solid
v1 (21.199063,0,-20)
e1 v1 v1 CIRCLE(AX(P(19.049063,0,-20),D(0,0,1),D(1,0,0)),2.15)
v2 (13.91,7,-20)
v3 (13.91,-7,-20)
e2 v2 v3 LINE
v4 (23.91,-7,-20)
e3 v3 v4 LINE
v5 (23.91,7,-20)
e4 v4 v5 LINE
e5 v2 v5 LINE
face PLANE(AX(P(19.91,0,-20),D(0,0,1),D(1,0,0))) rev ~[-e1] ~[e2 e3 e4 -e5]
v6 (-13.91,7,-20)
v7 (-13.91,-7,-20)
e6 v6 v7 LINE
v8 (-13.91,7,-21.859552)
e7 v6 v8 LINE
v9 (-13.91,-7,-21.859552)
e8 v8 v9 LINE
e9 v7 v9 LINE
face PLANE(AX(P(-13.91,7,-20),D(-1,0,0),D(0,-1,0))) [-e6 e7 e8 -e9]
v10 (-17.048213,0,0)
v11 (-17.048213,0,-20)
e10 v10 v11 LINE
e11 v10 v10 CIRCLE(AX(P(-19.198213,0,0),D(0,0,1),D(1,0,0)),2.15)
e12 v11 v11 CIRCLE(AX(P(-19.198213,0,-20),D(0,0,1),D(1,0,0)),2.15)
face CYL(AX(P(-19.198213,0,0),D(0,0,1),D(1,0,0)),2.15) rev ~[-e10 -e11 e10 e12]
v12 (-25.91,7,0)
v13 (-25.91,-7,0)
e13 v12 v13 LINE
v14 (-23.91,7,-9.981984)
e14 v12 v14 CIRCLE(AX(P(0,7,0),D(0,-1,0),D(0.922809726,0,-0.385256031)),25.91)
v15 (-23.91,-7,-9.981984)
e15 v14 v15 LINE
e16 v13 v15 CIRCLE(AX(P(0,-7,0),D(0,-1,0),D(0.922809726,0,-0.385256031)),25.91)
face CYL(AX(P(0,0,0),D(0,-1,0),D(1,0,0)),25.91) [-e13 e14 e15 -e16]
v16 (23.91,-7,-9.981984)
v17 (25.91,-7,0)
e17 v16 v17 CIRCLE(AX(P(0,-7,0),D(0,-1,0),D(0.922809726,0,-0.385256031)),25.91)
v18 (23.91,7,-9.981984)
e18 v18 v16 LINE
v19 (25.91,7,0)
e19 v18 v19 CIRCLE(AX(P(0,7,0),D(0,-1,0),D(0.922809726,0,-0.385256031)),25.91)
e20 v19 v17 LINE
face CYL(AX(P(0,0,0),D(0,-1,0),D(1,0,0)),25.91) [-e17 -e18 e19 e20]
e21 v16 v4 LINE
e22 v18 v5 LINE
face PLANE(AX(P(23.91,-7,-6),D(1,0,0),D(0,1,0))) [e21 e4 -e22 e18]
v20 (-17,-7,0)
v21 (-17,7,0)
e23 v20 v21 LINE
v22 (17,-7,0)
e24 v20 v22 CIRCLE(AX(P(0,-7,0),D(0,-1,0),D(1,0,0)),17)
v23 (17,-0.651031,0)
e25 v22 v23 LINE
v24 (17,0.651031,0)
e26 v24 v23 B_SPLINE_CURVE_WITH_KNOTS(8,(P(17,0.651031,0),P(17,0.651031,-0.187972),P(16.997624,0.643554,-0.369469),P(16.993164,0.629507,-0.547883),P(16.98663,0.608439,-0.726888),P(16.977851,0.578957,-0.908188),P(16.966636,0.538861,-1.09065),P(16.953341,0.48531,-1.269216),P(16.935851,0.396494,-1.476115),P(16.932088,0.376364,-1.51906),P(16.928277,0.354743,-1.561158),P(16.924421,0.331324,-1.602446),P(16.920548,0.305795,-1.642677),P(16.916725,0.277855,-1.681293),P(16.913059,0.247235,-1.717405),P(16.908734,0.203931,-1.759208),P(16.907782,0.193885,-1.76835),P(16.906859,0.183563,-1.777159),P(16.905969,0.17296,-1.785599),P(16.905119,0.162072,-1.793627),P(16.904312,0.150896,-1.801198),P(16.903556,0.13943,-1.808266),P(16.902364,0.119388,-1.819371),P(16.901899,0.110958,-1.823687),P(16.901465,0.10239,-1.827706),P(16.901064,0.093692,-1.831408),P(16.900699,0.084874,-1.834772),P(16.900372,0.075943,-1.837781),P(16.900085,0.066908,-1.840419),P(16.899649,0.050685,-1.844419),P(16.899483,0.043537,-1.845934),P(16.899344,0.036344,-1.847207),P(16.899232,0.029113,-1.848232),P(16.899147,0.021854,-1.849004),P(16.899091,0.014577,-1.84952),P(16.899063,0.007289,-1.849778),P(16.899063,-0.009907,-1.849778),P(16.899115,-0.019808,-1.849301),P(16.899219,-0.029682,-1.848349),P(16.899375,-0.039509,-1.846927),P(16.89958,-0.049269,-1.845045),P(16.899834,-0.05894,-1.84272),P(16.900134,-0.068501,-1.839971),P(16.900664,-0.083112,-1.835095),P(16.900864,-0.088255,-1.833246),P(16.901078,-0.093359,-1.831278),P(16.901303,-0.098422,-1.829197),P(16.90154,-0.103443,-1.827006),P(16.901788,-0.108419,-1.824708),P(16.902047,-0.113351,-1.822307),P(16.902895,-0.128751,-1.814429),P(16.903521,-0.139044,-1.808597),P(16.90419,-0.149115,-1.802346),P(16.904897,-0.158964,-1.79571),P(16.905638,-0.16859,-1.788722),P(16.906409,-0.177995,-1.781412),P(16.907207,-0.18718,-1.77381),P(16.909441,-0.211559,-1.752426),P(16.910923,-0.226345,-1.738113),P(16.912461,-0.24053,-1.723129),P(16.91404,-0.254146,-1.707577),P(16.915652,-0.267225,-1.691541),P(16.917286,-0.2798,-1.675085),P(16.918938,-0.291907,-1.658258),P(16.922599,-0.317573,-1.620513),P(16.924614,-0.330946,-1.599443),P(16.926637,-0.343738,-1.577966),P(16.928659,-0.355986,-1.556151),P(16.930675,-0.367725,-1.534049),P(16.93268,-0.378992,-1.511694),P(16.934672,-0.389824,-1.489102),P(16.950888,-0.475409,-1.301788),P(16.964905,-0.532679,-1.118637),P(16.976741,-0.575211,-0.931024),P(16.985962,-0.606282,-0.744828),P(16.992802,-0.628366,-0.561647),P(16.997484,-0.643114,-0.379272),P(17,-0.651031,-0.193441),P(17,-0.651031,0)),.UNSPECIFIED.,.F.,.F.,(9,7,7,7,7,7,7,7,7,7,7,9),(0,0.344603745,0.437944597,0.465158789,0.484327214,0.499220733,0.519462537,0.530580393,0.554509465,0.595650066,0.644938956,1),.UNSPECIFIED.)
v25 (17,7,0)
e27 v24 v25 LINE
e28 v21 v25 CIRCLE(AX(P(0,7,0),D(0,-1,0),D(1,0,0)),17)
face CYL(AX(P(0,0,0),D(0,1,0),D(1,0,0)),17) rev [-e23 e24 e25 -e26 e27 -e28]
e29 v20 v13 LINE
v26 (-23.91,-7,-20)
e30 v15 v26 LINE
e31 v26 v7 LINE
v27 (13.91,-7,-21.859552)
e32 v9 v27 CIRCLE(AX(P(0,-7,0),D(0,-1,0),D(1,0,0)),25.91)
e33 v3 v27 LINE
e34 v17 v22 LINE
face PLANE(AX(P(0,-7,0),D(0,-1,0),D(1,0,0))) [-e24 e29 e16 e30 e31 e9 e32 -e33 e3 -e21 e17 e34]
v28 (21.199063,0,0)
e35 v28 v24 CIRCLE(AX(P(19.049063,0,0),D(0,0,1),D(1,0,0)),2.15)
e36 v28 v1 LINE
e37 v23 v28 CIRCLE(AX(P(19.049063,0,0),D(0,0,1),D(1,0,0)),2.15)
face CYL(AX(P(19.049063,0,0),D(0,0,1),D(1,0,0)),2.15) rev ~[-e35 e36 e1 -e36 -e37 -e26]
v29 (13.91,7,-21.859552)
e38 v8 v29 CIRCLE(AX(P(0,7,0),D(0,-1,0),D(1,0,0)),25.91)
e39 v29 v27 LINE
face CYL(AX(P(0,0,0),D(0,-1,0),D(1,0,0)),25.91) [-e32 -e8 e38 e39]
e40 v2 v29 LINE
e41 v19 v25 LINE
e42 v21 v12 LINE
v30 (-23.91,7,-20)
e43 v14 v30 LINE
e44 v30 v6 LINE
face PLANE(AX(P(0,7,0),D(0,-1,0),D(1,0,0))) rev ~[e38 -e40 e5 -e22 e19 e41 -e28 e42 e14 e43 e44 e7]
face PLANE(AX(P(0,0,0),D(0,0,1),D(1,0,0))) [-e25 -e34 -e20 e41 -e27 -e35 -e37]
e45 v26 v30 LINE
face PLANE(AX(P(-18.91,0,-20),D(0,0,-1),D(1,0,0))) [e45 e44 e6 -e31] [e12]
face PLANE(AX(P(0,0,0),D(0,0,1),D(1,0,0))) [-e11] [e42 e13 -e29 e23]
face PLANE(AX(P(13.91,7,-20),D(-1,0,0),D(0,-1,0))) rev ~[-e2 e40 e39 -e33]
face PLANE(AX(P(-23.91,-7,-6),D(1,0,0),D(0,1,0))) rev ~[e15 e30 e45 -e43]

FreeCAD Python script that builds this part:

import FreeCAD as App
import Part
import Sketcher
Q = App.Units.Quantity

doc = App.newDocument("Part")
body = doc.addObject("PartDesign::Body", "Body")

# Sketch on XZ plane
sketch1 = body.newObject("Sketcher::SketchObject", "Sketch")
sketch1.AttachmentSupport = (doc.getObject("XZ_Plane"), [""])
sketch1.MapMode = "FlatFace"
sketch1.addGeometry(Part.Circle(App.Vector(0, 0, 0), App.Vector(0, 0, 1), 26), False)
sketch1.addConstraint([
    Sketcher.Constraint("Coincident", 0, 3, -1, 1),
    Sketcher.Constraint("Diameter", 0, Q("51.82 mm")),
])
pad1 = body.newObject("PartDesign::Pad", "Pad")
pad1.Profile = sketch1
pad1.Type = "TwoLengths"
pad1.Length = 7
pad1.Length2 = 7

# Sketch on XZ plane
sketch2 = body.newObject("Sketcher::SketchObject", "Sketch001")
sketch2.AttachmentSupport = (doc.getObject("XZ_Plane"), [""])
sketch2.MapMode = "FlatFace"
sketch2.addGeometry(Part.Circle(App.Vector(0, 0, 0), App.Vector(0, 0, 1), 17), False)
sketch2.addConstraint([
    Sketcher.Constraint("Coincident", 0, 3, -1, 1),
    Sketcher.Constraint("Diameter", 0, Q("34 mm")),
])
pocket1 = body.newObject("PartDesign::Pocket", "Pocket")
pocket1.Profile = sketch2
pocket1.Type = "ThroughAll"
pocket1.Midplane = True

# Sketch on XY plane
sketch3 = body.newObject("Sketcher::SketchObject", "Sketch002")
sketch3.AttachmentSupport = (doc.getObject("XY_Plane"), [""])
sketch3.MapMode = "FlatFace"
sketch3.AttachmentOffset = App.Placement(App.Vector(0, 0, -6), App.Rotation())
sketch3.addGeometry([
    Part.LineSegment(App.Vector(-24, 7, 0), App.Vector(-24, -7, 0)),  # 0
    Part.LineSegment(App.Vector(-24, -7, 0), App.Vector(-16, -7, 0)),  # 1
    Part.LineSegment(App.Vector(-16, -7, 0), App.Vector(-16, 7, 0)),  # 2
    Part.LineSegment(App.Vector(-16, 7, 0), App.Vector(-24, 7, 0)),  # 3
    Part.LineSegment(App.Vector(16, 7, 0), App.Vector(16, -7, 0)),  # 4
    Part.LineSegment(App.Vector(16, -7, 0), App.Vector(24, -7, 0)),  # 5
    Part.LineSegment(App.Vector(24, -7, 0), App.Vector(24, 7, 0)),  # 6
    Part.LineSegment(App.Vector(24, 7, 0), App.Vector(16, 7, 0)),  # 7
], False)
sketch3.addConstraint([
    Sketcher.Constraint("Coincident", 0, 2, 1, 1),
    Sketcher.Constraint("Coincident", 1, 2, 2, 1),
    Sketcher.Constraint("Coincident", 2, 2, 3, 1),
    Sketcher.Constraint("Coincident", 3, 2, 0, 1),
    Sketcher.Constraint("Coincident", 4, 2, 5, 1),
    Sketcher.Constraint("Coincident", 5, 2, 6, 1),
    Sketcher.Constraint("Coincident", 6, 2, 7, 1),
    Sketcher.Constraint("Coincident", 7, 2, 4, 1),
    Sketcher.Constraint("Vertical", 0),
    Sketcher.Constraint("Horizontal", 1),
    Sketcher.Constraint("Vertical", 2),
    Sketcher.Constraint("Horizontal", 3),
    Sketcher.Constraint("Vertical", 4),
    Sketcher.Constraint("Horizontal", 5),
    Sketcher.Constraint("Vertical", 6),
    Sketcher.Constraint("Horizontal", 7),
    Sketcher.Constraint("Symmetric", 2, 2, 4, 2, -1, 1),
    Sketcher.Constraint("Symmetric", 0, 2, 6, 2, -1, 1),
    Sketcher.Constraint("Horizontal", 1, 2, 4, 2),
    Sketcher.Constraint("DistanceX", 1, 1, 1, 2, Q("8 mm")),
    Sketcher.Constraint("DistanceY", 0, 2, 0, 1, Q("14 mm")),
    Sketcher.Constraint("DistanceX", 0, 2, -1, 1, Q("23.91 mm")),
])
pad2 = body.newObject("PartDesign::Pad", "Pad001")
pad2.Profile = sketch3
pad2.Length = 14
pad2.Reversed = True

# Sketch on XY plane
sketch4 = body.newObject("Sketcher::SketchObject", "Sketch003")
sketch4.AttachmentSupport = (doc.getObject("XY_Plane"), [""])
sketch4.MapMode = "FlatFace"
sketch4.addGeometry([
    Part.Circle(App.Vector(-19.2, 0, 0), App.Vector(0, 0, 1), 2.1),
    Part.Circle(App.Vector(19, 0, 0), App.Vector(0, 0, 1), 2.1),
], False)
sketch4.addConstraint([
    Sketcher.Constraint("Equal", 0, 1),
    Sketcher.Constraint("PointOnObject", 0, 3, -1),
    Sketcher.Constraint("PointOnObject", 1, 3, -1),
    Sketcher.Constraint("Diameter", 0, Q("4.3 mm")),
    Sketcher.Constraint("DistanceX", 0, 3, -1, 1, Q("19.198213 mm")),
    Sketcher.Constraint("DistanceX", -1, 1, 1, 3, Q("19.049063 mm")),
])
pocket2 = body.newObject("PartDesign::Pocket", "Pocket001")
pocket2.Profile = sketch4
pocket2.Type = "ThroughAll"
pocket2.Midplane = True

# Sketch on XY plane
sketch5 = body.newObject("Sketcher::SketchObject", "Sketch004")
sketch5.AttachmentSupport = (doc.getObject("XY_Plane"), [""])
sketch5.MapMode = "FlatFace"
sketch5.AttachmentOffset = App.Placement(App.Vector(0, 0, -20), App.Rotation())
sketch5.addGeometry([
    Part.LineSegment(App.Vector(-24, -7, 0), App.Vector(-24, 7, 0)),  # 0
    Part.LineSegment(App.Vector(-24, 7, 0), App.Vector(-14, 7, 0)),  # 1
    Part.LineSegment(App.Vector(-14, 7, 0), App.Vector(-14, -7, 0)),  # 2
    Part.LineSegment(App.Vector(-14, -7, 0), App.Vector(-24, -7, 0)),  # 3
    Part.LineSegment(App.Vector(14, -7, 0), App.Vector(14, 7, 0)),  # 4
    Part.LineSegment(App.Vector(14, 7, 0), App.Vector(24, 7, 0)),  # 5
    Part.LineSegment(App.Vector(24, 7, 0), App.Vector(24, -7, 0)),  # 6
    Part.LineSegment(App.Vector(24, -7, 0), App.Vector(14, -7, 0)),  # 7
], False)
sketch5.addConstraint([
    Sketcher.Constraint("Coincident", 0, 2, 1, 1),
    Sketcher.Constraint("Coincident", 1, 2, 2, 1),
    Sketcher.Constraint("Coincident", 2, 2, 3, 1),
    Sketcher.Constraint("Coincident", 3, 2, 0, 1),
    Sketcher.Constraint("Coincident", 4, 2, 5, 1),
    Sketcher.Constraint("Coincident", 5, 2, 6, 1),
    Sketcher.Constraint("Coincident", 6, 2, 7, 1),
    Sketcher.Constraint("Coincident", 7, 2, 4, 1),
    Sketcher.Constraint("Vertical", 0),
    Sketcher.Constraint("Horizontal", 1),
    Sketcher.Constraint("Vertical", 2),
    Sketcher.Constraint("Horizontal", 3),
    Sketcher.Constraint("Vertical", 4),
    Sketcher.Constraint("Horizontal", 5),
    Sketcher.Constraint("Vertical", 6),
    Sketcher.Constraint("Horizontal", 7),
    Sketcher.Constraint("Symmetric", 2, 2, 4, 2, -1, 1),
    Sketcher.Constraint("Symmetric", 0, 2, 6, 2, -1, 1),
    Sketcher.Constraint("Horizontal", 1, 2, 4, 2),
    Sketcher.Constraint("DistanceX", 1, 1, 1, 2, Q("10 mm")),
    Sketcher.Constraint("DistanceY", 0, 1, 0, 2, Q("14 mm")),
    Sketcher.Constraint("DistanceX", 0, 2, -1, 1, Q("23.91 mm")),
])
pocket3 = body.newObject("PartDesign::Pocket", "Pocket002")
pocket3.Profile = sketch5
pocket3.Length = 10

# Sketch on XY plane
sketch6 = body.newObject("Sketcher::SketchObject", "Sketch005")
sketch6.AttachmentSupport = (doc.getObject("XY_Plane"), [""])
sketch6.MapMode = "FlatFace"
sketch6.addGeometry([
    Part.LineSegment(App.Vector(-38, 23, 0), App.Vector(-38, -23, 0)),
    Part.LineSegment(App.Vector(-38, -23, 0), App.Vector(38, -23, 0)),
    Part.LineSegment(App.Vector(38, -23, 0), App.Vector(38, 23, 0)),
    Part.LineSegment(App.Vector(38, 23, 0), App.Vector(-38, 23, 0)),
], False)
sketch6.addConstraint([
    Sketcher.Constraint("Coincident", 0, 2, 1, 1),
    Sketcher.Constraint("Coincident", 1, 2, 2, 1),
    Sketcher.Constraint("Coincident", 2, 2, 3, 1),
    Sketcher.Constraint("Coincident", 3, 2, 0, 1),
    Sketcher.Constraint("Vertical", 0),
    Sketcher.Constraint("Horizontal", 1),
    Sketcher.Constraint("Vertical", 2),
    Sketcher.Constraint("Horizontal", 3),
    Sketcher.Constraint("Symmetric", 0, 2, 2, 2, -1, 1),
    Sketcher.Constraint("DistanceX", 1, 1, 1, 2, Q("75.51387 mm")),
    Sketcher.Constraint("DistanceY", 0, 2, 0, 1, Q("46.221528 mm")),
])
pocket4 = body.newObject("PartDesign::Pocket", "Pocket003")
pocket4.Profile = sketch6
pocket4.Length = 30
pocket4.Reversed = True

doc.recompute()
